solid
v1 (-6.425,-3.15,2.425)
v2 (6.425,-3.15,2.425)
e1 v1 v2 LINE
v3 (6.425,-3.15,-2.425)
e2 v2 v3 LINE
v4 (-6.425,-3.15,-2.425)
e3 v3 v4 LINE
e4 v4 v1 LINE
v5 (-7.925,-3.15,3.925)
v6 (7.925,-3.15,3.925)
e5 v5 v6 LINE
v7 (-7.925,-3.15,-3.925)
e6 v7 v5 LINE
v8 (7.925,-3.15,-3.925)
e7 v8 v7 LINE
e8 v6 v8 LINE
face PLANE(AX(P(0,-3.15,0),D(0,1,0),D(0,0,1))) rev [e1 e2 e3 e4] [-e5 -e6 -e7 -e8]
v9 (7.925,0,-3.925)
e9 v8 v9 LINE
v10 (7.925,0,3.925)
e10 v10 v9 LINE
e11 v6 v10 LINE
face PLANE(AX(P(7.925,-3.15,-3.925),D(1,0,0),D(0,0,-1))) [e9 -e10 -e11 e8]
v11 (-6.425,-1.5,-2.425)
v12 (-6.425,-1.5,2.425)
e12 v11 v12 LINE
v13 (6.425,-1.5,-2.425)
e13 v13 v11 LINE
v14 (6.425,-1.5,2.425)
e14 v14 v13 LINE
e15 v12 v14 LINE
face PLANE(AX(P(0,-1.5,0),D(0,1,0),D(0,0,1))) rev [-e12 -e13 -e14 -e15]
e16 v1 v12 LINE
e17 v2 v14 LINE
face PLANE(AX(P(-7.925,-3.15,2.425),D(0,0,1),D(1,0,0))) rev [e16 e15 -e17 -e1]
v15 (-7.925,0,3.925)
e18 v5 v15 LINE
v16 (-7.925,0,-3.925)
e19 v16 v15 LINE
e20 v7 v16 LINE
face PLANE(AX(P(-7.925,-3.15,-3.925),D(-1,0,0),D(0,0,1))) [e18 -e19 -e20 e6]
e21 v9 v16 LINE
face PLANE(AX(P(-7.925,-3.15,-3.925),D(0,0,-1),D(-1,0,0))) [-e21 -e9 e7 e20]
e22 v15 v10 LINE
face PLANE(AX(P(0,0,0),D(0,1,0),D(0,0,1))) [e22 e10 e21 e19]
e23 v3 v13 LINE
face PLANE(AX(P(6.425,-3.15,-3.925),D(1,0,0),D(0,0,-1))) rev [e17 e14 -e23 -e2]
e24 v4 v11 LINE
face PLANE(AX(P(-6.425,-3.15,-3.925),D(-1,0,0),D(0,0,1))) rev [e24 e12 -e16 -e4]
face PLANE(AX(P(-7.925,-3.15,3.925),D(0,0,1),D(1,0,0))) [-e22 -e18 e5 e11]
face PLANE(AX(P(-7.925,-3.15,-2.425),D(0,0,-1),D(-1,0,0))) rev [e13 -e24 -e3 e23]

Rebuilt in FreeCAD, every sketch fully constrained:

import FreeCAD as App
import Part
import Sketcher

V = App.Vector


def faces_at(feature, points):
    """Names of the faces that lie closest to the given points."""
    faces = feature.Shape.Faces
    near = lambda p: min(range(len(faces)), key=lambda i: faces[i].distToShape(Part.Vertex(*p))[0])
    return sorted({f"Face{near(p) + 1}" for p in points})


def add_polygon(sketch, points):
    """Adds a closed chain of lines whose ends are joined by coincident constraints."""
    first, n = sketch.GeometryCount, len(points)
    for a, b in zip(points, points[1:] + points[:1]):
        sketch.addGeometry(Part.LineSegment(App.Vector(*a, 0), App.Vector(*b, 0)), False)
    for i in range(n):
        sketch.addConstraint(Sketcher.Constraint("Coincident", first + i, 2, first + (i + 1) % n, 1))

doc = App.newDocument("Part")
body = doc.addObject("PartDesign::Body", "Body")

# Sketch on XZ plane
sketch1 = body.newObject("Sketcher::SketchObject", "Sketch")
sketch1.AttachmentSupport = (doc.getObject("XZ_Plane"), [""])
sketch1.MapMode = "FlatFace"
add_polygon(sketch1, [(-7.925, -3.925), (-7.925, 3.925), (7.925, 3.925), (7.925, -3.925)])  # lines 0-3
sketch1.addConstraint([
    Sketcher.Constraint("Vertical", 0),
    Sketcher.Constraint("Horizontal", 1),
    Sketcher.Constraint("Vertical", 2),
    Sketcher.Constraint("Horizontal", 3),
    Sketcher.Constraint("Symmetric", 0, 2, 2, 2, -1, 1),
    Sketcher.Constraint("DistanceX", 1, 1, 1, 2, 15.85),
    Sketcher.Constraint("DistanceY", 0, 1, 0, 2, 7.85),
])
pad1 = body.newObject("PartDesign::Pad", "Pad")
pad1.Profile = sketch1
pad1.Length = 3.15
doc.recompute()

thickness = body.newObject("PartDesign::Thickness", "Thickness")
thickness.Base = (pad1, faces_at(pad1, [(0, -3.15, 0)]))
thickness.Value = 1.5
thickness.Reversed = True
thickness.Join = "Intersection"

doc.recompute()
